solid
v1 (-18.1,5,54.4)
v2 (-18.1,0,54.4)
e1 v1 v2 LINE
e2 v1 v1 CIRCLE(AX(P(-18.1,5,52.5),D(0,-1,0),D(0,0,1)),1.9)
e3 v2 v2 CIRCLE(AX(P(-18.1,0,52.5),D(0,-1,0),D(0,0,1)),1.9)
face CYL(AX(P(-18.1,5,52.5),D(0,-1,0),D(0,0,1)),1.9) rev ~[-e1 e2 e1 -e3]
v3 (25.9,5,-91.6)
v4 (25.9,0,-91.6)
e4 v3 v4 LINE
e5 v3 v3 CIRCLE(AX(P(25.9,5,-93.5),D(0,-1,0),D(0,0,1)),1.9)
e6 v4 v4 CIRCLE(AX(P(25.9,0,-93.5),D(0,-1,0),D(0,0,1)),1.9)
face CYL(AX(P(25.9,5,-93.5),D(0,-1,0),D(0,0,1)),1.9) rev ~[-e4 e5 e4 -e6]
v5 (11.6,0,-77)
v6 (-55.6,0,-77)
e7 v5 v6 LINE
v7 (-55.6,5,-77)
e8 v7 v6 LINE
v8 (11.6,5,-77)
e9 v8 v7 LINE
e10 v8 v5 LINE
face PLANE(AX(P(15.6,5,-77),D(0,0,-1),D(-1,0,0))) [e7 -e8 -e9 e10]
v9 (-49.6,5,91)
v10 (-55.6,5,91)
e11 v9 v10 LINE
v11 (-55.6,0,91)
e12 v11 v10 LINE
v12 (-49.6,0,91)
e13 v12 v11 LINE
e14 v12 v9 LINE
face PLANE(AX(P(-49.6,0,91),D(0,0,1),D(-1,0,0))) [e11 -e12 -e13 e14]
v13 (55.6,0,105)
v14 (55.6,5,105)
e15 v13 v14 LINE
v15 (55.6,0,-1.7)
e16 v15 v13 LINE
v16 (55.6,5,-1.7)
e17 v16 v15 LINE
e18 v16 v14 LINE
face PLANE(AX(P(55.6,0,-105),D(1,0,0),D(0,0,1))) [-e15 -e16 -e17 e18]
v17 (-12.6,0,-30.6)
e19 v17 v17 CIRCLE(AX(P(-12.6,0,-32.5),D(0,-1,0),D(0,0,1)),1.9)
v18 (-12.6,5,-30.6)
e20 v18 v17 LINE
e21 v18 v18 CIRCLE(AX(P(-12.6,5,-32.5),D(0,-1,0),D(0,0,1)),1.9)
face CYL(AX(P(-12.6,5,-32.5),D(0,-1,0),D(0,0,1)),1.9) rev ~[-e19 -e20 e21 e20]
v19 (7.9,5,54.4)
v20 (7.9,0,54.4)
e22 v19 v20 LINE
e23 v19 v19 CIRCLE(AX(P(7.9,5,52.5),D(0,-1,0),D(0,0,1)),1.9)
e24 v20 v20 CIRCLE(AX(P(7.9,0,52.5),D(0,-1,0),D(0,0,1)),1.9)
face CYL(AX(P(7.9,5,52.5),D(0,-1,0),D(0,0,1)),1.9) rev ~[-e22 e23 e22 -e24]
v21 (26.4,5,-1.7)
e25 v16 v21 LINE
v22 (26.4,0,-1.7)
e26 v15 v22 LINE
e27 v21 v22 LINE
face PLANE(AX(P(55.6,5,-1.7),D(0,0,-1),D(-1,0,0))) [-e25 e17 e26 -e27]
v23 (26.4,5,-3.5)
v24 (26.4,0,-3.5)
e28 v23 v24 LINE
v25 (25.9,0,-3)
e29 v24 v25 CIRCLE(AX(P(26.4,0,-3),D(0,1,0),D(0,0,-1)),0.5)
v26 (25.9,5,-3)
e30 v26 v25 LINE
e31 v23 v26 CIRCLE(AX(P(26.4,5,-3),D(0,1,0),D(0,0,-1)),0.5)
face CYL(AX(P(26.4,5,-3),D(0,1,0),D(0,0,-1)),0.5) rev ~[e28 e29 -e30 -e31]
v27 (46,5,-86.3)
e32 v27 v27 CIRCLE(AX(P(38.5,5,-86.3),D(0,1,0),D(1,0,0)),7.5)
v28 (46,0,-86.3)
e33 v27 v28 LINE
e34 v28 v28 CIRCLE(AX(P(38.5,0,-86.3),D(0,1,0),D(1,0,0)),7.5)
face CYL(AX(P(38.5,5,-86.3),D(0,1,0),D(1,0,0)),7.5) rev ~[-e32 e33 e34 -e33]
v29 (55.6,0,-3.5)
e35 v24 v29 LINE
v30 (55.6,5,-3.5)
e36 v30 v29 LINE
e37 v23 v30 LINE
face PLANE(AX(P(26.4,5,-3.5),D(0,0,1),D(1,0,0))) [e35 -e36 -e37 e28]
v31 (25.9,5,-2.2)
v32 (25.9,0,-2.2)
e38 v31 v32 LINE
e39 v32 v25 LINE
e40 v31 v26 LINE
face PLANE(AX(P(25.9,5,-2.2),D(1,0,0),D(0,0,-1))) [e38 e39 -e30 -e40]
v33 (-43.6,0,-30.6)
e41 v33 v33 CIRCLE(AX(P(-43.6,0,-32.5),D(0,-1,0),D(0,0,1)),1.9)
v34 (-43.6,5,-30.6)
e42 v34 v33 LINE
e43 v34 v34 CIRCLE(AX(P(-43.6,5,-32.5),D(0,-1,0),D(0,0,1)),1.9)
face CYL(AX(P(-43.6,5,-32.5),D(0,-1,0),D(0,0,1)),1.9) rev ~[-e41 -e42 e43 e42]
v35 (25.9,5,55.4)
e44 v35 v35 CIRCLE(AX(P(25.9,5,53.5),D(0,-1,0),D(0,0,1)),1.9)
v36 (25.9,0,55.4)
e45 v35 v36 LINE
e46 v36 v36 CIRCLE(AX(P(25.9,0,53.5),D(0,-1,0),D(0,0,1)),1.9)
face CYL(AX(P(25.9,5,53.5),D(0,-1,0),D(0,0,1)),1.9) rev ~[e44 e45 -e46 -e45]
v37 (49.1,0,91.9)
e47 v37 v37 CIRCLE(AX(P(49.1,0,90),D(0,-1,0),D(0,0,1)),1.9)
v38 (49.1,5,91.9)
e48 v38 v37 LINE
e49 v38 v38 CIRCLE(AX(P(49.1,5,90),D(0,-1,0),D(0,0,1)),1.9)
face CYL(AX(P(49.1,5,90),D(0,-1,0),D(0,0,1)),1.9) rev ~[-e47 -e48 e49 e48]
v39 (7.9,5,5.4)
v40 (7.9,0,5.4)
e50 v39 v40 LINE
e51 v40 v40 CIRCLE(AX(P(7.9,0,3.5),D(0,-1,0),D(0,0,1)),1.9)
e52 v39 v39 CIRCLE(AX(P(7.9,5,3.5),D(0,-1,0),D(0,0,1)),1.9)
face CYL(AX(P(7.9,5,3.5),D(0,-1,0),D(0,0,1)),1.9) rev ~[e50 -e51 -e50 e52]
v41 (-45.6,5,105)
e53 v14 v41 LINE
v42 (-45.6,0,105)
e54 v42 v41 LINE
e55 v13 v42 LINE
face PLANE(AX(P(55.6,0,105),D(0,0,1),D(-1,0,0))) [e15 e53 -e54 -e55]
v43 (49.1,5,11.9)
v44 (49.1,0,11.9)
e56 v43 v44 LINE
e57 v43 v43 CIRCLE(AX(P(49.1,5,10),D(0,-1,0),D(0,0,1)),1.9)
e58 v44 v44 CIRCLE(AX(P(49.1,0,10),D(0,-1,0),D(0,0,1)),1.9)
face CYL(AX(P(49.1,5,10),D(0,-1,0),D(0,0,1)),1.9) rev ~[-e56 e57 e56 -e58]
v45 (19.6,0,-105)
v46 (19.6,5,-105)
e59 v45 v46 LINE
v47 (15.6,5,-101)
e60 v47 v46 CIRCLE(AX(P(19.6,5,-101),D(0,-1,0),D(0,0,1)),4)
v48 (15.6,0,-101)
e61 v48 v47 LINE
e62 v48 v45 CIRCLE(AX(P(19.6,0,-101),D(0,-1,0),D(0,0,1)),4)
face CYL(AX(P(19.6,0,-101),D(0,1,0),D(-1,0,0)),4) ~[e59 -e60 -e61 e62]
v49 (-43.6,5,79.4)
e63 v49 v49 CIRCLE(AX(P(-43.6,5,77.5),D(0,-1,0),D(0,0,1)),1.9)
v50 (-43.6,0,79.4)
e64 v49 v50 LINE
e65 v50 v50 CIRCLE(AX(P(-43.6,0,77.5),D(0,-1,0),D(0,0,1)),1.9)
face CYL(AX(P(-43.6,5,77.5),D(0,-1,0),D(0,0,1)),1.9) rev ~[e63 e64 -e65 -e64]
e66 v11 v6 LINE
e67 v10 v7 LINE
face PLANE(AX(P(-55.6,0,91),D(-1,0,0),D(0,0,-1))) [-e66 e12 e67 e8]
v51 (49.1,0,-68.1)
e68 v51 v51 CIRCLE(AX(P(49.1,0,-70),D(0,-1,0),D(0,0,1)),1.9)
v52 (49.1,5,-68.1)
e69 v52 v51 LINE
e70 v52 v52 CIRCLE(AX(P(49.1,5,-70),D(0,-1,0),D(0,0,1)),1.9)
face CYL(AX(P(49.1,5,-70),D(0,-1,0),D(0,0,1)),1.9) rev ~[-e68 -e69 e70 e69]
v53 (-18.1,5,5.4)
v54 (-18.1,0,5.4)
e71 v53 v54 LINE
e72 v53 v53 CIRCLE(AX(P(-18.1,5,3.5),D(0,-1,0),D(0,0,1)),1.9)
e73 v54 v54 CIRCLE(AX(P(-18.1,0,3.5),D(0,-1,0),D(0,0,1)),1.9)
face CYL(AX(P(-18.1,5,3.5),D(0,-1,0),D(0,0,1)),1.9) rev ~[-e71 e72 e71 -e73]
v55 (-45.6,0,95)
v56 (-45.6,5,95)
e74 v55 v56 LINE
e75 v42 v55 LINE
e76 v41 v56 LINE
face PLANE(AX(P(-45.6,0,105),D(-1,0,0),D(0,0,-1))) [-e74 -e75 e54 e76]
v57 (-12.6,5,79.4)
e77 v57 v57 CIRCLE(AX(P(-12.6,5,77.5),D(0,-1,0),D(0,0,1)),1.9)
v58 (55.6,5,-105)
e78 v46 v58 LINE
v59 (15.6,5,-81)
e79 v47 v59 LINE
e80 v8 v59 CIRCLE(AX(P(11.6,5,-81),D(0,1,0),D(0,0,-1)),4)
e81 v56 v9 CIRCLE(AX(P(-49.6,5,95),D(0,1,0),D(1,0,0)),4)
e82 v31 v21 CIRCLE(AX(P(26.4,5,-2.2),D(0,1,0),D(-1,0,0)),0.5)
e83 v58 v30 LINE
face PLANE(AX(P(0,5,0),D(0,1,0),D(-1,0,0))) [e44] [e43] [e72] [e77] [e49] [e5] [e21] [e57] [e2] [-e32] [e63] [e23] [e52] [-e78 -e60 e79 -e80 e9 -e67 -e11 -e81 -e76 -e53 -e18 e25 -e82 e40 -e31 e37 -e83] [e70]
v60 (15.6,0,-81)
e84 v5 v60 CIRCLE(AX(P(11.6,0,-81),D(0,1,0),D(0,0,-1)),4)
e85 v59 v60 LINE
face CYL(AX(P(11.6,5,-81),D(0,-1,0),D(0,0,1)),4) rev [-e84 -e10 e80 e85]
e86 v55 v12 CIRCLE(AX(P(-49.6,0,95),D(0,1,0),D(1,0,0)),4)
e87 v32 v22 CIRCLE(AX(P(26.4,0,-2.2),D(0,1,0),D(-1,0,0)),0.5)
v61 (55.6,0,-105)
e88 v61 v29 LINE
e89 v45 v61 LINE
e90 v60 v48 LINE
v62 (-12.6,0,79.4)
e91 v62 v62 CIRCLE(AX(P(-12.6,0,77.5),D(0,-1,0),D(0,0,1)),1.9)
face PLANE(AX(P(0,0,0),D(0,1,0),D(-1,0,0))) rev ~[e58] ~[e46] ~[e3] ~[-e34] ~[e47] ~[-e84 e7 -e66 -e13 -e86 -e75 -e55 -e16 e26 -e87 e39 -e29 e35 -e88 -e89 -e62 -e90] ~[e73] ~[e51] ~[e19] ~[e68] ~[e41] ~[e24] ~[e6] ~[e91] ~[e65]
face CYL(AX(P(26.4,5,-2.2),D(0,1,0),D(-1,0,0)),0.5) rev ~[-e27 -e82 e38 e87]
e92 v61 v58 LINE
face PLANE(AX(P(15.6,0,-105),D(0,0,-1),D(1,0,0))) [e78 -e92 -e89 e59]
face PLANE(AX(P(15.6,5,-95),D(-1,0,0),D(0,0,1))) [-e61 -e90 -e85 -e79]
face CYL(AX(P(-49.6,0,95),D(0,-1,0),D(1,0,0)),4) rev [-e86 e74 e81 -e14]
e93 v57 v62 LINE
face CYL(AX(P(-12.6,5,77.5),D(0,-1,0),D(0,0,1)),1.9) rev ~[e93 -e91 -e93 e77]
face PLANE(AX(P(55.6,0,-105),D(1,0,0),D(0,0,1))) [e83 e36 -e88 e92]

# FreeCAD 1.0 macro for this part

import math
import FreeCAD as App
import Part
import Sketcher
from FreeCAD import Vector


def edges_at(feature, points):
    """Names of the edges that pass closest to the given points."""
    edges = feature.Shape.Edges
    near = lambda p: min(range(len(edges)), key=lambda i: edges[i].distToShape(Part.Vertex(*p))[0])
    return sorted({f"Edge{near(p) + 1}" for p in points})


def add_polygon(sketch, points):
    """Adds a closed chain of lines whose ends are joined by coincident constraints."""
    first, n = sketch.GeometryCount, len(points)
    for a, b in zip(points, points[1:] + points[:1]):
        sketch.addGeometry(Part.LineSegment(App.Vector(*a, 0), App.Vector(*b, 0)), False)
    for i in range(n):
        sketch.addConstraint(Sketcher.Constraint("Coincident", first + i, 2, first + (i + 1) % n, 1))

doc = App.newDocument("Part")
body = doc.addObject("PartDesign::Body", "Body")

# Sketch on XZ plane
sketch1 = body.newObject("Sketcher::SketchObject", "Sketch")
sketch1.AttachmentSupport = (doc.getObject("XZ_Plane"), [""])
sketch1.MapMode = "FlatFace"
sketch1.addGeometry(Part.LineSegment(Vector(-45.6, 105, 0), Vector(55.6, 105, 0)), False)
sketch1.addGeometry(Part.LineSegment(Vector(55.6, 105, 0), Vector(55.6, -105, 0)), False)
sketch1.addGeometry(Part.LineSegment(Vector(55.6, -105, 0), Vector(15.6, -105, 0)), False)
sketch1.addGeometry(Part.LineSegment(Vector(15.6, -105, 0), Vector(15.6, -95, 0)), False)
sketch1.addGeometry(Part.LineSegment(Vector(15.6, -95, 0), Vector(-55.6, -95, 0)), False)
sketch1.addGeometry(Part.LineSegment(Vector(-55.6, -95, 0), Vector(-55.6, 91, 0)), False)
sketch1.addGeometry(Part.LineSegment(Vector(-55.6, 91, 0), Vector(-49.6, 91, 0)), False)
sketch1.addGeometry(Part.ArcOfCircle(Part.Circle(Vector(-49.6, 95, 0), Vector(0, 0, 1), 4), math.radians(-90), math.radians(0)), False)
sketch1.addGeometry(Part.LineSegment(Vector(-45.6, 95, 0), Vector(-45.6, 105, 0)), False)
sketch1.addConstraint(Sketcher.Constraint("Coincident", 0, 2, 1, 1))
sketch1.addConstraint(Sketcher.Constraint("Coincident", 1, 2, 2, 1))
sketch1.addConstraint(Sketcher.Constraint("Coincident", 2, 2, 3, 1))
sketch1.addConstraint(Sketcher.Constraint("Coincident", 3, 2, 4, 1))
sketch1.addConstraint(Sketcher.Constraint("Coincident", 4, 2, 5, 1))
sketch1.addConstraint(Sketcher.Constraint("Coincident", 5, 2, 6, 1))
sketch1.addConstraint(Sketcher.Constraint("Tangent", 6, 2, 7, 1))
sketch1.addConstraint(Sketcher.Constraint("Tangent", 7, 2, 8, 1))
sketch1.addConstraint(Sketcher.Constraint("Coincident", 8, 2, 0, 1))
sketch1.addConstraint(Sketcher.Constraint("Horizontal", 0))
sketch1.addConstraint(Sketcher.Constraint("Vertical", 1))
sketch1.addConstraint(Sketcher.Constraint("Horizontal", 2))
sketch1.addConstraint(Sketcher.Constraint("Vertical", 3))
sketch1.addConstraint(Sketcher.Constraint("Horizontal", 4))
sketch1.addConstraint(Sketcher.Constraint("Vertical", 5))
sketch1.addConstraint(Sketcher.Constraint("Horizontal", 6))
sketch1.addConstraint(Sketcher.Constraint("Vertical", 8))
sketch1.addConstraint(Sketcher.Constraint("Equal", 3, 8))
sketch1.addConstraint(Sketcher.Constraint("Radius", 7, 4.0))
sketch1.addConstraint(Sketcher.Constraint("DistanceX", 2, 2, 2, 1, 40.0))
sketch1.addConstraint(Sketcher.Constraint("DistanceY", 1, 2, 1, 1, 210.0))
sketch1.addConstraint(Sketcher.Constraint("DistanceY", 3, 1, 3, 2, 10.0))
sketch1.addConstraint(Sketcher.Constraint("DistanceX", 5, 2, 7, 2, 10.0))
sketch1.addConstraint(Sketcher.Constraint("DistanceX", 4, 2, 1, 2, 111.2))
sketch1.addConstraint(Sketcher.Constraint("DistanceY", -1, 1, 7, 3, 95.0))
sketch1.addConstraint(Sketcher.Constraint("DistanceX", 7, 3, -1, 1, 49.6))
pad1 = body.newObject("PartDesign::Pad", "Pad")
pad1.Profile = sketch1
pad1.Length = 5
pad1.Reversed = True

# Sketch on XZ plane
sketch2 = body.newObject("Sketcher::SketchObject", "Sketch001")
sketch2.AttachmentSupport = (doc.getObject("XZ_Plane"), [""])
sketch2.MapMode = "FlatFace"
sketch2.AttachmentOffset = App.Placement(Vector(0, 0, -5), App.Rotation())
sketch2.addGeometry(Part.Circle(Vector(-43.6, 77.5, 0), Vector(0, 0, 1), 1.9), False)
sketch2.addGeometry(Part.Circle(Vector(-43.6, -32.5, 0), Vector(0, 0, 1), 1.9), False)
sketch2.addGeometry(Part.Circle(Vector(-12.6, 77.5, 0), Vector(0, 0, 1), 1.9), False)
sketch2.addGeometry(Part.Circle(Vector(-12.6, -32.5, 0), Vector(0, 0, 1), 1.9), False)
sketch2.addConstraint(Sketcher.Constraint("Equal", 0, 1))
sketch2.addConstraint(Sketcher.Constraint("Equal", 1, 2))
sketch2.addConstraint(Sketcher.Constraint("Equal", 2, 3))
sketch2.addConstraint(Sketcher.Constraint("Horizontal", 0, 3, 2, 3))
sketch2.addConstraint(Sketcher.Constraint("Horizontal", 1, 3, 3, 3))
sketch2.addConstraint(Sketcher.Constraint("Vertical", 0, 3, 1, 3))
sketch2.addConstraint(Sketcher.Constraint("Vertical", 2, 3, 3, 3))
sketch2.addConstraint(Sketcher.Constraint("Diameter", 0, 3.8))
sketch2.addConstraint(Sketcher.Constraint("DistanceY", 1, 3, 0, 3, 110.0))
sketch2.addConstraint(Sketcher.Constraint("DistanceX", 0, 3, 2, 3, 31.0))
sketch2.addConstraint(Sketcher.Constraint("DistanceX", 0, 3, -1, 1, 43.6))
sketch2.addConstraint(Sketcher.Constraint("DistanceY", -1, 1, 0, 3, 77.5))
doc.recompute()
hole = body.newObject("PartDesign::Hole", "Hole")
hole.Profile = sketch2
hole.ThreadType = "None"
hole.Diameter = 3.8
hole.DepthType = "ThroughAll"
hole.Reversed = True

# Sketch on XZ plane
sketch3 = body.newObject("Sketcher::SketchObject", "Sketch002")
sketch3.AttachmentSupport = (doc.getObject("XZ_Plane"), [""])
sketch3.MapMode = "FlatFace"
sketch3.AttachmentOffset = App.Placement(Vector(0, 0, -5), App.Rotation())
sketch3.addGeometry(Part.Circle(Vector(25.9, -93.5, 0), Vector(0, 0, 1), 1.9), False)
sketch3.addGeometry(Part.Circle(Vector(25.9, 53.5, 0), Vector(0, 0, 1), 1.9), False)
sketch3.addConstraint(Sketcher.Constraint("Equal", 0, 1))
sketch3.addConstraint(Sketcher.Constraint("Vertical", 0, 3, 1, 3))
sketch3.addConstraint(Sketcher.Constraint("Diameter", 0, 3.8))
sketch3.addConstraint(Sketcher.Constraint("DistanceY", 0, 3, 1, 3, 147.0))
sketch3.addConstraint(Sketcher.Constraint("DistanceX", -1, 1, 0, 3, 25.9))
sketch3.addConstraint(Sketcher.Constraint("DistanceY", 0, 3, -1, 1, 93.5))
doc.recompute()
hole2 = body.newObject("PartDesign::Hole", "Hole001")
hole2.Profile = sketch3
hole2.ThreadType = "None"
hole2.Diameter = 3.8
hole2.DepthType = "ThroughAll"
hole2.Reversed = True

# Sketch on XZ plane
sketch4 = body.newObject("Sketcher::SketchObject", "Sketch003")
sketch4.AttachmentSupport = (doc.getObject("XZ_Plane"), [""])
sketch4.MapMode = "FlatFace"
sketch4.AttachmentOffset = App.Placement(Vector(0, 0, -5), App.Rotation())
sketch4.addGeometry(Part.Circle(Vector(49.1, -70, 0), Vector(0, 0, 1), 1.9), False)
sketch4.addGeometry(Part.Circle(Vector(49.1, 10, 0), Vector(0, 0, 1), 1.9), False)
sketch4.addGeometry(Part.Circle(Vector(49.1, 90, 0), Vector(0, 0, 1), 1.9), False)
sketch4.addConstraint(Sketcher.Constraint("Equal", 0, 1))
sketch4.addConstraint(Sketcher.Constraint("Equal", 1, 2))
sketch4.addConstraint(Sketcher.Constraint("Vertical", 0, 3, 1, 3))
sketch4.addConstraint(Sketcher.Constraint("Vertical", 1, 3, 2, 3))
sketch4.addConstraint(Sketcher.Constraint("Diameter", 0, 3.8))
sketch4.addConstraint(Sketcher.Constraint("DistanceY", 0, 3, -1, 1, 70.0))
sketch4.addConstraint(Sketcher.Constraint("DistanceY", -1, 1, 1, 3, 10.0))
sketch4.addConstraint(Sketcher.Constraint("DistanceY", -1, 1, 2, 3, 90.0))
sketch4.addConstraint(Sketcher.Constraint("DistanceX", -1, 1, 0, 3, 49.1))
doc.recompute()
hole3 = body.newObject("PartDesign::Hole", "Hole002")
hole3.Profile = sketch4
hole3.ThreadType = "None"
hole3.Diameter = 3.8
hole3.DepthType = "ThroughAll"
hole3.Reversed = True

# Sketch on XZ plane
sketch5 = body.newObject("Sketcher::SketchObject", "Sketch004")
sketch5.AttachmentSupport = (doc.getObject("XZ_Plane"), [""])
sketch5.MapMode = "FlatFace"
sketch5.AttachmentOffset = App.Placement(Vector(0, 0, -5), App.Rotation())
sketch5.addGeometry(Part.LineSegment(Vector(26.4, -1.7, 0), Vector(55.6, -1.7, 0)), False)
sketch5.addGeometry(Part.LineSegment(Vector(55.6, -1.7, 0), Vector(55.6, -3.5, 0)), False)
sketch5.addGeometry(Part.LineSegment(Vector(55.6, -3.5, 0), Vector(26.4, -3.5, 0)), False)
sketch5.addGeometry(Part.ArcOfCircle(Part.Circle(Vector(26.4, -3, 0), Vector(0, 0, 1), 0.5), math.radians(180), math.radians(270)), False)
sketch5.addGeometry(Part.LineSegment(Vector(25.9, -3, 0), Vector(25.9, -2.2, 0)), False)
sketch5.addGeometry(Part.ArcOfCircle(Part.Circle(Vector(26.4, -2.2, 0), Vector(0, 0, 1), 0.5), math.radians(90), math.radians(180)), False)
sketch5.addConstraint(Sketcher.Constraint("Coincident", 0, 2, 1, 1))
sketch5.addConstraint(Sketcher.Constraint("Coincident", 1, 2, 2, 1))
sketch5.addConstraint(Sketcher.Constraint("Tangent", 2, 2, 3, 2))
sketch5.addConstraint(Sketcher.Constraint("Tangent", 3, 1, 4, 1))
sketch5.addConstraint(Sketcher.Constraint("Tangent", 4, 2, 5, 2))
sketch5.addConstraint(Sketcher.Constraint("Tangent", 5, 1, 0, 1))
sketch5.addConstraint(Sketcher.Constraint("Horizontal", 0))
sketch5.addConstraint(Sketcher.Constraint("Vertical", 1))
sketch5.addConstraint(Sketcher.Constraint("Horizontal", 2))
sketch5.addConstraint(Sketcher.Constraint("Vertical", 4))
sketch5.addConstraint(Sketcher.Constraint("Equal", 3, 5))
sketch5.addConstraint(Sketcher.Constraint("Radius", 3, 0.5))
sketch5.addConstraint(Sketcher.Constraint("DistanceY", 1, 2, 1, 1, 1.8))
sketch5.addConstraint(Sketcher.Constraint("DistanceX", 0, 1, 0, 2, 29.2))
sketch5.addConstraint(Sketcher.Constraint("DistanceY", 3, 3, -1, 1, 3.0))
sketch5.addConstraint(Sketcher.Constraint("DistanceX", -1, 1, 3, 3, 26.4))
pocket1 = body.newObject("PartDesign::Pocket", "Pocket")
pocket1.Profile = sketch5
pocket1.Type = "ThroughAll"
pocket1.Reversed = True

# Sketch on XZ plane
sketch6 = body.newObject("Sketcher::SketchObject", "Sketch005")
sketch6.AttachmentSupport = (doc.getObject("XZ_Plane"), [""])
sketch6.MapMode = "FlatFace"
sketch6.AttachmentOffset = App.Placement(Vector(0, 0, -5), App.Rotation())
sketch6.addGeometry(Part.Circle(Vector(-18.1, 3.5, 0), Vector(0, 0, 1), 1.9), False)
sketch6.addGeometry(Part.Circle(Vector(7.9, 3.5, 0), Vector(0, 0, 1), 1.9), False)
sketch6.addGeometry(Part.Circle(Vector(7.9, 52.5, 0), Vector(0, 0, 1), 1.9), False)
sketch6.addGeometry(Part.Circle(Vector(-18.1, 52.5, 0), Vector(0, 0, 1), 1.9), False)
sketch6.addConstraint(Sketcher.Constraint("Equal", 0, 1))
sketch6.addConstraint(Sketcher.Constraint("Equal", 1, 2))
sketch6.addConstraint(Sketcher.Constraint("Equal", 2, 3))
sketch6.addConstraint(Sketcher.Constraint("Horizontal", 0, 3, 1, 3))
sketch6.addConstraint(Sketcher.Constraint("Horizontal", 2, 3, 3, 3))
sketch6.addConstraint(Sketcher.Constraint("Vertical", 1, 3, 2, 3))
sketch6.addConstraint(Sketcher.Constraint("Vertical", 0, 3, 3, 3))
sketch6.addConstraint(Sketcher.Constraint("Diameter", 0, 3.8))
sketch6.addConstraint(Sketcher.Constraint("DistanceX", 0, 3, 1, 3, 26.0))
sketch6.addConstraint(Sketcher.Constraint("DistanceY", 1, 3, 2, 3, 49.0))
sketch6.addConstraint(Sketcher.Constraint("DistanceX", 0, 3, -1, 1, 18.1))
sketch6.addConstraint(Sketcher.Constraint("DistanceY", -1, 1, 0, 3, 3.5))
doc.recompute()
hole4 = body.newObject("PartDesign::Hole", "Hole003")
hole4.Profile = sketch6
hole4.ThreadType = "None"
hole4.Diameter = 3.8
hole4.DepthType = "ThroughAll"
hole4.Reversed = True

# Sketch on XZ plane
sketch7 = body.newObject("Sketcher::SketchObject", "Sketch006")
sketch7.AttachmentSupport = (doc.getObject("XZ_Plane"), [""])
sketch7.MapMode = "FlatFace"
sketch7.AttachmentOffset = App.Placement(Vector(0, 0, -5), App.Rotation())
add_polygon(sketch7, [(16, -95), (-56, -95), (-56, -77), (16, -77)])  # lines 0-3
sketch7.addGeometry(Part.Circle(Vector(38, -86, 0), Vector(0, 0, 1), 8), False)  # 4
sketch7.addConstraint(Sketcher.Constraint("Horizontal", 0))
sketch7.addConstraint(Sketcher.Constraint("Vertical", 1))
sketch7.addConstraint(Sketcher.Constraint("Horizontal", 2))
sketch7.addConstraint(Sketcher.Constraint("Vertical", 3))
sketch7.addConstraint(Sketcher.Constraint("Diameter", 4, 15.0))
sketch7.addConstraint(Sketcher.Constraint("DistanceY", 1, 1, 1, 2, 18.0))
sketch7.addConstraint(Sketcher.Constraint("DistanceX", 0, 2, 0, 1, 71.2))
sketch7.addConstraint(Sketcher.Constraint("DistanceY", 0, 2, -1, 1, 95.0))
sketch7.addConstraint(Sketcher.Constraint("DistanceX", -1, 1, 4, 3, 38.5))
sketch7.addConstraint(Sketcher.Constraint("DistanceY", 4, 3, -1, 1, 86.3))
sketch7.addConstraint(Sketcher.Constraint("DistanceX", 0, 2, -1, 1, 55.6))
pocket2 = body.newObject("PartDesign::Pocket", "Pocket001")
pocket2.Profile = sketch7
pocket2.Type = "ThroughAll"
pocket2.Reversed = True
doc.recompute()

fillet = body.newObject("PartDesign::Fillet", "Fillet")
fillet.Base = (pocket2, edges_at(pocket2, [(15.6, 2.5, -77), (15.6, 2.5, -105)]))
fillet.Radius = 4

doc.recompute()
